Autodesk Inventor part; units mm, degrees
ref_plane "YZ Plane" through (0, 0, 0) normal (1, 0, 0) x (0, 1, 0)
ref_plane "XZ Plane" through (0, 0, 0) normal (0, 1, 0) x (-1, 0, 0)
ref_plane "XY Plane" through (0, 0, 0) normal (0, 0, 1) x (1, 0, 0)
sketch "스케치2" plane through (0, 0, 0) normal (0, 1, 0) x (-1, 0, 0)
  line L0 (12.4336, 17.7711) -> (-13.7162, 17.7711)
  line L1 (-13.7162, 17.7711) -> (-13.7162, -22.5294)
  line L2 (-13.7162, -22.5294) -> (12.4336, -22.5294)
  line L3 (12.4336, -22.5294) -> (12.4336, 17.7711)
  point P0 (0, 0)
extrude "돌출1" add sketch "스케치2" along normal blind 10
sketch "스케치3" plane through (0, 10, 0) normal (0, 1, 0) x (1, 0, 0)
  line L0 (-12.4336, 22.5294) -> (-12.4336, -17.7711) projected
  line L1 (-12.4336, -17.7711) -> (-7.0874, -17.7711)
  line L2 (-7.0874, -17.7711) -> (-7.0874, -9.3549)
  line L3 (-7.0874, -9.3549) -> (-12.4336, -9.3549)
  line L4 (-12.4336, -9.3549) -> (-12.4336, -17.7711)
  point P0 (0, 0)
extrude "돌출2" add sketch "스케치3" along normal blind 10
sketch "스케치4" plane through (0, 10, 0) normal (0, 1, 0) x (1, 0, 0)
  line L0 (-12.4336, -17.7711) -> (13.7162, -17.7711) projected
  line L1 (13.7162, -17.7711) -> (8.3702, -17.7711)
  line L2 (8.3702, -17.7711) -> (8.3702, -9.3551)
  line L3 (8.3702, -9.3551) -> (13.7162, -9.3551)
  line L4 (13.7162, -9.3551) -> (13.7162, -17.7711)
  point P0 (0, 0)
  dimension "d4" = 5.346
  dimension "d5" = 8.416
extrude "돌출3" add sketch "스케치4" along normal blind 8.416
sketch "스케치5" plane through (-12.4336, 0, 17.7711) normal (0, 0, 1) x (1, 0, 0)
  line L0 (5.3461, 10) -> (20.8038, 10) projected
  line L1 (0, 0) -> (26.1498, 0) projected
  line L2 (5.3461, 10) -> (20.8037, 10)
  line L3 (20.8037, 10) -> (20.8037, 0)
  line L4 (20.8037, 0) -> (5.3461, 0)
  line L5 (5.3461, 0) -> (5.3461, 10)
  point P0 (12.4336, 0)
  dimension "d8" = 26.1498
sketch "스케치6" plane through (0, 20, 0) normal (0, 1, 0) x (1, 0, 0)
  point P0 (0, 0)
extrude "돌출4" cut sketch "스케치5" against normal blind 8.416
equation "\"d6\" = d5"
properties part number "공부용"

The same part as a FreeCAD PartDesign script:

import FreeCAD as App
import Part
import Sketcher
from FreeCAD import Vector
Q = App.Units.Quantity

doc = App.newDocument("Part")
params = doc.addObject("Spreadsheet::Sheet", "Params")
for row, (alias, value) in enumerate([
    ("pad1_length", "10 mm"),
    ("pad2_length", "10 mm"),
    ("pad3_length", "8.416 mm"),
    ("sketch4_height", "10 mm"),
    ("pocket1_length", "8.416 mm"),
], start=1):
    params.set(f"A{row}", alias)
    params.set(f"B{row}", "=" + value)
    params.setAlias(f"B{row}", alias)

body = doc.addObject("PartDesign::Body", "Body")

sketch1 = body.newObject("Sketcher::SketchObject", "Sketch")
sketch1.AttachmentSupport = (doc.getObject("XZ_Plane"), [""])
sketch1.MapMode = "FlatFace"
sketch1.addGeometry([
    Part.LineSegment(Vector(-12, -23, 0), Vector(-12, 18, 0)),
    Part.LineSegment(Vector(-12, 18, 0), Vector(14, 18, 0)),
    Part.LineSegment(Vector(14, 18, 0), Vector(14, -23, 0)),
    Part.LineSegment(Vector(14, -23, 0), Vector(-12, -23, 0)),
], False)
sketch1.addConstraint([
    Sketcher.Constraint("Coincident", 0, 2, 1, 1),
    Sketcher.Constraint("Coincident", 1, 2, 2, 1),
    Sketcher.Constraint("Coincident", 2, 2, 3, 1),
    Sketcher.Constraint("Coincident", 3, 2, 0, 1),
    Sketcher.Constraint("Vertical", 0),
    Sketcher.Constraint("Horizontal", 1),
    Sketcher.Constraint("Vertical", 2),
    Sketcher.Constraint("Horizontal", 3),
    Sketcher.Constraint("DistanceX", 1, 1, 1, 2, Q("26.1498 mm")),
    Sketcher.Constraint("DistanceY", 0, 1, 0, 2, Q("40.3005 mm")),
    Sketcher.Constraint("DistanceY", -1, 1, 0, 2, Q("17.771 mm")),
    Sketcher.Constraint("DistanceX", 0, 2, -1, 1, Q("12.4336 mm")),
])
pad1 = body.newObject("PartDesign::Pad", "Pad")
pad1.Profile = sketch1
pad1.setExpression("Length", "Params.pad1_length")
pad1.Reversed = True

sketch2 = body.newObject("Sketcher::SketchObject", "Sketch001")
sketch2.AttachmentSupport = (doc.getObject("XZ_Plane"), [""])
sketch2.MapMode = "FlatFace"
sketch2.AttachmentOffset = App.Placement(Vector(0, 0, -10), App.Rotation())
sketch2.addGeometry([
    Part.LineSegment(Vector(-7, 9, 0), Vector(-12, 9, 0)),
    Part.LineSegment(Vector(-12, 9, 0), Vector(-12, 18, 0)),
    Part.LineSegment(Vector(-12, 18, 0), Vector(-7, 18, 0)),
    Part.LineSegment(Vector(-7, 18, 0), Vector(-7, 9, 0)),
], False)
sketch2.addConstraint([
    Sketcher.Constraint("Coincident", 0, 2, 1, 1),
    Sketcher.Constraint("Coincident", 1, 2, 2, 1),
    Sketcher.Constraint("Coincident", 2, 2, 3, 1),
    Sketcher.Constraint("Coincident", 3, 2, 0, 1),
    Sketcher.Constraint("Horizontal", 0),
    Sketcher.Constraint("Vertical", 1),
    Sketcher.Constraint("Horizontal", 2),
    Sketcher.Constraint("Vertical", 3),
    Sketcher.Constraint("DistanceX", 0, 2, 0, 1, Q("5.3462 mm")),
    Sketcher.Constraint("DistanceY", 1, 1, 1, 2, Q("8.4162 mm")),
    Sketcher.Constraint("DistanceY", -1, 1, 0, 2, Q("9.355 mm")),
    Sketcher.Constraint("DistanceX", 0, 2, -1, 1, Q("12.4336 mm")),
])
pad2 = body.newObject("PartDesign::Pad", "Pad001")
pad2.Profile = sketch2
pad2.setExpression("Length", "Params.pad2_length")
pad2.Reversed = True

sketch3 = body.newObject("Sketcher::SketchObject", "Sketch002")
sketch3.AttachmentSupport = (doc.getObject("XZ_Plane"), [""])
sketch3.MapMode = "FlatFace"
sketch3.AttachmentOffset = App.Placement(Vector(0, 0, -10), App.Rotation())
sketch3.addGeometry([
    Part.LineSegment(Vector(8, 9, 0), Vector(8, 18, 0)),
    Part.LineSegment(Vector(8, 18, 0), Vector(14, 18, 0)),
    Part.LineSegment(Vector(14, 18, 0), Vector(14, 9, 0)),
    Part.LineSegment(Vector(14, 9, 0), Vector(8, 9, 0)),
], False)
sketch3.addConstraint([
    Sketcher.Constraint("Coincident", 0, 2, 1, 1),
    Sketcher.Constraint("Coincident", 1, 2, 2, 1),
    Sketcher.Constraint("Coincident", 2, 2, 3, 1),
    Sketcher.Constraint("Coincident", 3, 2, 0, 1),
    Sketcher.Constraint("Vertical", 0),
    Sketcher.Constraint("Horizontal", 1),
    Sketcher.Constraint("Vertical", 2),
    Sketcher.Constraint("Horizontal", 3),
    Sketcher.Constraint("DistanceX", 1, 1, 1, 2, Q("5.346 mm")),
    Sketcher.Constraint("DistanceY", 0, 1, 0, 2, Q("8.416 mm")),
    Sketcher.Constraint("DistanceY", -1, 1, 0, 2, Q("17.771 mm")),
    Sketcher.Constraint("DistanceX", -1, 1, 0, 2, Q("8.3702 mm")),
])
pad3 = body.newObject("PartDesign::Pad", "Pad002")
pad3.Profile = sketch3
pad3.setExpression("Length", "Params.pad3_length")
pad3.Reversed = True

sketch4 = body.newObject("Sketcher::SketchObject", "Sketch003")
sketch4.AttachmentSupport = (doc.getObject("XY_Plane"), [""])
sketch4.MapMode = "FlatFace"
sketch4.AttachmentOffset = App.Placement(Vector(0, 0, 17.7711), App.Rotation())
sketch4.addGeometry([
    Part.LineSegment(Vector(8, 10, 0), Vector(-7, 10, 0)),
    Part.LineSegment(Vector(-7, 10, 0), Vector(-7, 0, 0)),
    Part.LineSegment(Vector(-7, 0, 0), Vector(8, 0, 0)),
    Part.LineSegment(Vector(8, 0, 0), Vector(8, 10, 0)),
], False)
sketch4.addConstraint([
    Sketcher.Constraint("Coincident", 0, 2, 1, 1),
    Sketcher.Constraint("Coincident", 1, 2, 2, 1),
    Sketcher.Constraint("Coincident", 2, 2, 3, 1),
    Sketcher.Constraint("Coincident", 3, 2, 0, 1),
    Sketcher.Constraint("Horizontal", 0),
    Sketcher.Constraint("Vertical", 1),
    Sketcher.Constraint("Horizontal", 2),
    Sketcher.Constraint("Vertical", 3),
    Sketcher.Constraint("PointOnObject", 1, 2, -1),
    Sketcher.Constraint("DistanceY", 1, 2, 1, 1, Q("10 mm")),
    Sketcher.Constraint("DistanceX", -1, 1, 2, 2, Q("8.37 mm")),
    Sketcher.Constraint("DistanceX", 0, 2, 0, 1, Q("15.4577 mm")),
])
sketch4.setExpression("Constraints[9]", "Params.sketch4_height")
pocket1 = body.newObject("PartDesign::Pocket", "Pocket")
pocket1.Profile = sketch4
pocket1.setExpression("Length", "Params.pocket1_length")

doc.recompute()
